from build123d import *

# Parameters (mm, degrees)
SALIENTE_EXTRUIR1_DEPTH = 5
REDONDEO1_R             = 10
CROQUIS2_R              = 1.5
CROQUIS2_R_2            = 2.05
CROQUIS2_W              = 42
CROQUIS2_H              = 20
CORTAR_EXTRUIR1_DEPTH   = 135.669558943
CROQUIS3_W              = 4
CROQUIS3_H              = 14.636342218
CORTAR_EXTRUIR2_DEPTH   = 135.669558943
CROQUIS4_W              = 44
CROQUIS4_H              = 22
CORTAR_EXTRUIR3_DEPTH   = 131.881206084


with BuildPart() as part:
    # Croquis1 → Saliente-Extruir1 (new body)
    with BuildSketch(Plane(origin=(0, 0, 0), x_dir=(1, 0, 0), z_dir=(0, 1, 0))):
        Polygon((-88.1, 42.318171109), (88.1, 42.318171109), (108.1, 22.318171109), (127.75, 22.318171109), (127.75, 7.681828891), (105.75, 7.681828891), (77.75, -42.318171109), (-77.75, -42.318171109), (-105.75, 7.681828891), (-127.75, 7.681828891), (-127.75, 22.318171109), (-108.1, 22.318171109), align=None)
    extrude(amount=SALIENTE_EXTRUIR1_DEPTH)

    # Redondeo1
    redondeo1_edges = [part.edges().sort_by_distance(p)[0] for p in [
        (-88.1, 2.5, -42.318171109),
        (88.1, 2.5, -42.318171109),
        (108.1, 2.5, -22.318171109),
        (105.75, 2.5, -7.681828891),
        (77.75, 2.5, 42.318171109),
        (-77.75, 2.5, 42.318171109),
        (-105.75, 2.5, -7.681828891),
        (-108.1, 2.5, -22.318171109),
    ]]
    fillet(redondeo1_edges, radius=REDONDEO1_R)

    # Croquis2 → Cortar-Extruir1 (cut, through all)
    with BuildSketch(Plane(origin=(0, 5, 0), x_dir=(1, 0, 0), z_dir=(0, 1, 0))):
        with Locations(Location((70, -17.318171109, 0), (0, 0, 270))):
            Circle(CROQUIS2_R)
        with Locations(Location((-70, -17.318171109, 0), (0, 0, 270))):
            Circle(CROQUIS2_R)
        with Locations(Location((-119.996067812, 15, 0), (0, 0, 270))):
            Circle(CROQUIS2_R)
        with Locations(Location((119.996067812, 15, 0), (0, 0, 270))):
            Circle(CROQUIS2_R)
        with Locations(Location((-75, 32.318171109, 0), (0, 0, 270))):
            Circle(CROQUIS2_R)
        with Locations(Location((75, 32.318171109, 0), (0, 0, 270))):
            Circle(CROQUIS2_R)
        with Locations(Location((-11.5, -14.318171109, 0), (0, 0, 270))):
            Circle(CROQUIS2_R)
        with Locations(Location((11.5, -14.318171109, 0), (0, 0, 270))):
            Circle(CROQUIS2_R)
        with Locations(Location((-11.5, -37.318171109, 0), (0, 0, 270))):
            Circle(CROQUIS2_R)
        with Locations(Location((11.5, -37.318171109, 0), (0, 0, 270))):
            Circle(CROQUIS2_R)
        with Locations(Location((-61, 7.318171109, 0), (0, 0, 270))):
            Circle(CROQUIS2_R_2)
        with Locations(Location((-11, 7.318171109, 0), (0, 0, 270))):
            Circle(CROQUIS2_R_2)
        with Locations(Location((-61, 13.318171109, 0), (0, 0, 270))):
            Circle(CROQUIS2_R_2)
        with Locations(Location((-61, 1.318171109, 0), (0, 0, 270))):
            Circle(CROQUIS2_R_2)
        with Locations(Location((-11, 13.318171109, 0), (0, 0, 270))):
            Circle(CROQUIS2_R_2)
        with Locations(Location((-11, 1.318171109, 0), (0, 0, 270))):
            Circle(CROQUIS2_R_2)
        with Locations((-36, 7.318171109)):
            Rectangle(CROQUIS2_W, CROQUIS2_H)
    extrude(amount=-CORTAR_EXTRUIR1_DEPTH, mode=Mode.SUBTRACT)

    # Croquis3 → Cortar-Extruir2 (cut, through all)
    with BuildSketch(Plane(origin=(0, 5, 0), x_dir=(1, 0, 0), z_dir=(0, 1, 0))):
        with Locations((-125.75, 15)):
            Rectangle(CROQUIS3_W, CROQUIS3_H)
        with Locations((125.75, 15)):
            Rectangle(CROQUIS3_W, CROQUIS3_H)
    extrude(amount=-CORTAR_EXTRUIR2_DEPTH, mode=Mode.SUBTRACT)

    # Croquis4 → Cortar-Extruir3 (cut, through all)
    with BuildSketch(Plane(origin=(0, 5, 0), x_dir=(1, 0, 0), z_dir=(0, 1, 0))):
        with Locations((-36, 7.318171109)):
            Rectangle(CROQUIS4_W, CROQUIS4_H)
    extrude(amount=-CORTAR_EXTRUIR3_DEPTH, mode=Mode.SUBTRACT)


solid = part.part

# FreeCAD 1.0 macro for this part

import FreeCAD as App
import Part
import Sketcher
from FreeCAD import Vector


def edges_at(feature, points):
    """Names of the edges that pass closest to the given points."""
    edges = feature.Shape.Edges
    near = lambda p: min(range(len(edges)), key=lambda i: edges[i].distToShape(Part.Vertex(*p))[0])
    return sorted({f"Edge{near(p) + 1}" for p in points})

doc = App.newDocument("Part")
params = doc.addObject("Spreadsheet::Sheet", "Params")
for row, (alias, value) in enumerate([
    ("sketch1_width", "22 mm"),
    ("sketch1_width2", "176.2 mm"),
    ("sketch1_width3", "155.5 mm"),
    ("pad1_length", "5 mm"),
    ("fillet_radius", "10 mm"),
    ("sketch2_diameter", "3 mm"),
    ("sketch2_diameter2", "4.1 mm"),
    ("sketch2_width", "42 mm"),
    ("sketch2_height", "20 mm"),
    ("sketch3_width", "4 mm"),
    ("sketch4_width", "44 mm"),
    ("sketch4_height", "22 mm"),
], start=1):
    params.set(f"A{row}", alias)
    params.set(f"B{row}", "=" + value)
    params.setAlias(f"B{row}", alias)

body = doc.addObject("PartDesign::Body", "Body")

# Sketch on XZ plane
sketch1 = doc.addObject("Sketcher::SketchObject", "Sketch")
body.addObject(sketch1)
sketch1.AttachmentSupport = (doc.XZ_Plane, [""])
sketch1.MapMode = "FlatFace"
sketch1.addGeometry([
    Part.LineSegment(Vector(88.1, -42.318171, 0), Vector(-88.1, -42.318171, 0)),  # 0
    Part.LineSegment(Vector(-88.1, -42.318171, 0), Vector(-108.1, -22.318171, 0)),  # 1
    Part.LineSegment(Vector(-108.1, -22.318171, 0), Vector(-127.75, -22.318171, 0)),  # 2
    Part.LineSegment(Vector(-127.75, -22.318171, 0), Vector(-127.75, -7.681829, 0)),  # 3
    Part.LineSegment(Vector(-127.75, -7.681829, 0), Vector(-105.75, -7.681829, 0)),  # 4
    Part.LineSegment(Vector(-105.75, -7.681829, 0), Vector(-77.75, 42.318171, 0)),  # 5
    Part.LineSegment(Vector(-77.75, 42.318171, 0), Vector(77.75, 42.318171, 0)),  # 6
    Part.LineSegment(Vector(77.75, 42.318171, 0), Vector(105.75, -7.681829, 0)),  # 7
    Part.LineSegment(Vector(105.75, -7.681829, 0), Vector(127.75, -7.681829, 0)),  # 8
    Part.LineSegment(Vector(127.75, -7.681829, 0), Vector(127.75, -22.318171, 0)),  # 9
    Part.LineSegment(Vector(127.75, -22.318171, 0), Vector(108.1, -22.318171, 0)),  # 10
    Part.LineSegment(Vector(108.1, -22.318171, 0), Vector(88.1, -42.318171, 0)),  # 11
], False)
sketch1.addConstraint([
    Sketcher.Constraint("Coincident", 0, 2, 1, 1),
    Sketcher.Constraint("Coincident", 1, 2, 2, 1),
    Sketcher.Constraint("Coincident", 2, 2, 3, 1),
    Sketcher.Constraint("Coincident", 3, 2, 4, 1),
    Sketcher.Constraint("Coincident", 4, 2, 5, 1),
    Sketcher.Constraint("Coincident", 5, 2, 6, 1),
    Sketcher.Constraint("Coincident", 6, 2, 7, 1),
    Sketcher.Constraint("Coincident", 7, 2, 8, 1),
    Sketcher.Constraint("Coincident", 8, 2, 9, 1),
    Sketcher.Constraint("Coincident", 9, 2, 10, 1),
    Sketcher.Constraint("Coincident", 10, 2, 11, 1),
    Sketcher.Constraint("Coincident", 11, 2, 0, 1),
    Sketcher.Constraint("Horizontal", 0),
    Sketcher.Constraint("Horizontal", 2),
    Sketcher.Constraint("Vertical", 3),
    Sketcher.Constraint("Horizontal", 4),
    Sketcher.Constraint("Horizontal", 6),
    Sketcher.Constraint("Horizontal", 8),
    Sketcher.Constraint("Vertical", 9),
    Sketcher.Constraint("Horizontal", 10),
    Sketcher.Constraint("Symmetric", 4, 2, 7, 2, -2),
    Sketcher.Constraint("Symmetric", 2, 2, 9, 2, -2),
    Sketcher.Constraint("Perpendicular", 1, 11),
    Sketcher.Constraint("Equal", 2, 10),
    Sketcher.Constraint("Equal", 5, 7),
    Sketcher.Constraint("Equal", 1, 11),
    Sketcher.Constraint("DistanceX", 4, 1, 4, 2, 22.0),
    Sketcher.Constraint("DistanceX", 0, 2, 0, 1, 176.2),
    Sketcher.Constraint("DistanceX", 6, 1, 6, 2, 155.5),
    Sketcher.Constraint("DistanceX", 1, 2, 0, 2, 20.0),
    Sketcher.Constraint("DistanceX", 4, 2, 5, 2, 28.0),
    Sketcher.Constraint("DistanceY", 4, 2, 5, 2, 50.0),
    Sketcher.Constraint("DistanceY", 3, 1, 3, 2, 14.636342),
    Sketcher.Constraint("DistanceY", 0, 2, -1, 1, 42.318171),
])
sketch1.setExpression("Constraints[26]", "Params.sketch1_width")
sketch1.setExpression("Constraints[27]", "Params.sketch1_width2")
sketch1.setExpression("Constraints[28]", "Params.sketch1_width3")
pad1 = doc.addObject("PartDesign::Pad", "Pad")
body.addObject(pad1)
pad1.Profile = sketch1
pad1.setExpression("Length", "Params.pad1_length")
pad1.Reversed = True
doc.recompute()

fillet = doc.addObject("PartDesign::Fillet", "Fillet")
body.addObject(fillet)
fillet.Base = (pad1, edges_at(pad1, [
    (-88.1, 2.5, -42.318),
    (88.1, 2.5, -42.318),
    (108.1, 2.5, -22.318),
    (105.75, 2.5, -7.682),
    (77.75, 2.5, 42.318),
    (-77.75, 2.5, 42.318),
    (-105.75, 2.5, -7.682),
    (-108.1, 2.5, -22.318),
]))
fillet.setExpression("Radius", "Params.fillet_radius")

# Sketch on XZ plane
sketch2 = doc.addObject("Sketcher::SketchObject", "Sketch001")
body.addObject(sketch2)
sketch2.AttachmentSupport = (doc.XZ_Plane, [""])
sketch2.MapMode = "FlatFace"
sketch2.AttachmentOffset = App.Placement(Vector(0, 0, -5), App.Rotation())
sketch2.addGeometry([
    Part.Circle(Vector(70, 17.318171, 0), Vector(0, 0, 1), 1.5),  # 0
    Part.Circle(Vector(-70, 17.318171, 0), Vector(0, 0, 1), 1.5),  # 1
    Part.Circle(Vector(-119.996068, -15, 0), Vector(0, 0, 1), 1.5),  # 2
    Part.Circle(Vector(119.996068, -15, 0), Vector(0, 0, 1), 1.5),  # 3
    Part.Circle(Vector(-75, -32.318171, 0), Vector(0, 0, 1), 1.5),  # 4
    Part.Circle(Vector(75, -32.318171, 0), Vector(0, 0, 1), 1.5),  # 5
    Part.Circle(Vector(-11.5, 14.318171, 0), Vector(0, 0, 1), 1.5),  # 6
    Part.Circle(Vector(11.5, 14.318171, 0), Vector(0, 0, 1), 1.5),  # 7
    Part.Circle(Vector(-11.5, 37.318171, 0), Vector(0, 0, 1), 1.5),  # 8
    Part.Circle(Vector(11.5, 37.318171, 0), Vector(0, 0, 1), 1.5),  # 9
    Part.Circle(Vector(-61, -7.318171, 0), Vector(0, 0, 1), 2.05),  # 10
    Part.Circle(Vector(-11, -7.318171, 0), Vector(0, 0, 1), 2.05),  # 11
    Part.Circle(Vector(-61, -13.318171, 0), Vector(0, 0, 1), 2.05),  # 12
    Part.Circle(Vector(-61, -1.318171, 0), Vector(0, 0, 1), 2.05),  # 13
    Part.Circle(Vector(-11, -13.318171, 0), Vector(0, 0, 1), 2.05),  # 14
    Part.Circle(Vector(-11, -1.318171, 0), Vector(0, 0, 1), 2.05),  # 15
    Part.LineSegment(Vector(-57, -17.318171, 0), Vector(-57, 2.681829, 0)),  # 16
    Part.LineSegment(Vector(-57, 2.681829, 0), Vector(-15, 2.681829, 0)),  # 17
    Part.LineSegment(Vector(-15, 2.681829, 0), Vector(-15, -17.318171, 0)),  # 18
    Part.LineSegment(Vector(-15, -17.318171, 0), Vector(-57, -17.318171, 0)),  # 19
], False)
sketch2.addConstraint([
    Sketcher.Constraint("Coincident", 16, 2, 17, 1),
    Sketcher.Constraint("Coincident", 17, 2, 18, 1),
    Sketcher.Constraint("Coincident", 18, 2, 19, 1),
    Sketcher.Constraint("Coincident", 19, 2, 16, 1),
    Sketcher.Constraint("Vertical", 16),
    Sketcher.Constraint("Horizontal", 17),
    Sketcher.Constraint("Vertical", 18),
    Sketcher.Constraint("Horizontal", 19),
    Sketcher.Constraint("Equal", 0, 1),
    Sketcher.Constraint("Equal", 1, 2),
    Sketcher.Constraint("Equal", 2, 3),
    Sketcher.Constraint("Equal", 3, 4),
    Sketcher.Constraint("Equal", 4, 5),
    Sketcher.Constraint("Equal", 5, 6),
    Sketcher.Constraint("Equal", 6, 7),
    Sketcher.Constraint("Equal", 7, 8),
    Sketcher.Constraint("Equal", 8, 9),
    Sketcher.Constraint("Equal", 10, 11),
    Sketcher.Constraint("Equal", 11, 12),
    Sketcher.Constraint("Equal", 12, 13),
    Sketcher.Constraint("Equal", 13, 14),
    Sketcher.Constraint("Equal", 14, 15),
    Sketcher.Constraint("Symmetric", 0, 3, 1, 3, -2),
    Sketcher.Constraint("Symmetric", 2, 3, 3, 3, -2),
    Sketcher.Constraint("Symmetric", 4, 3, 5, 3, -2),
    Sketcher.Constraint("Symmetric", 6, 3, 7, 3, -2),
    Sketcher.Constraint("Symmetric", 8, 3, 9, 3, -2),
    Sketcher.Constraint("Horizontal", 10, 3, 11, 3),
    Sketcher.Constraint("Horizontal", 12, 3, 14, 3),
    Sketcher.Constraint("Horizontal", 13, 3, 15, 3),
    Sketcher.Constraint("Vertical", 6, 3, 8, 3),
    Sketcher.Constraint("Vertical", 10, 3, 12, 3),
    Sketcher.Constraint("Vertical", 12, 3, 13, 3),
    Sketcher.Constraint("Vertical", 11, 3, 14, 3),
    Sketcher.Constraint("Vertical", 14, 3, 15, 3),
    Sketcher.Constraint("Diameter", 0, 3.0),
    Sketcher.Constraint("Diameter", 10, 4.1),
    Sketcher.Constraint("DistanceX", 17, 1, 17, 2, 42.0),
    Sketcher.Constraint("DistanceY", 16, 1, 16, 2, 20.0),
    Sketcher.Constraint("DistanceX", -1, 1, 0, 3, 70.0),
    Sketcher.Constraint("DistanceY", 2, 3, -1, 1, 15.0),
    Sketcher.Constraint("DistanceX", 4, 3, -1, 1, 75.0),
    Sketcher.Constraint("DistanceX", 10, 3, -1, 1, 61.0),
    Sketcher.Constraint("DistanceX", 11, 3, -1, 1, 11.0),
    Sketcher.Constraint("DistanceX", 16, 2, -1, 1, 57.0),
    Sketcher.Constraint("DistanceY", 6, 3, 1, 3, 3.0),
    Sketcher.Constraint("DistanceX", 6, 3, 7, 3, 23.0),
    Sketcher.Constraint("DistanceY", 6, 3, 8, 3, 23.0),
    Sketcher.Constraint("DistanceY", 4, 3, 10, 3, 25.0),
    Sketcher.Constraint("DistanceY", 12, 3, 10, 3, 6.0),
    Sketcher.Constraint("DistanceY", 10, 3, 13, 3, 6.0),
    Sketcher.Constraint("DistanceY", 13, 3, 16, 2, 4.0),
    Sketcher.Constraint("DistanceY", -1, 1, 0, 3, 17.318171),
    Sketcher.Constraint("DistanceY", 4, 3, -1, 1, 32.318171),
    Sketcher.Constraint("DistanceX", 2, 3, -1, 1, 119.996068),
])
sketch2.setExpression("Constraints[35]", "Params.sketch2_diameter")
sketch2.setExpression("Constraints[36]", "Params.sketch2_diameter2")
sketch2.setExpression("Constraints[37]", "Params.sketch2_width")
sketch2.setExpression("Constraints[38]", "Params.sketch2_height")
pocket1 = doc.addObject("PartDesign::Pocket", "Pocket")
body.addObject(pocket1)
pocket1.Profile = sketch2
pocket1.Type = "ThroughAll"
pocket1.Reversed = True

# Sketch on XZ plane
sketch3 = doc.addObject("Sketcher::SketchObject", "Sketch002")
body.addObject(sketch3)
sketch3.AttachmentSupport = (doc.XZ_Plane, [""])
sketch3.MapMode = "FlatFace"
sketch3.AttachmentOffset = App.Placement(Vector(0, 0, -5), App.Rotation())
sketch3.addGeometry([
    Part.LineSegment(Vector(-127.75, -22.318171, 0), Vector(-127.75, -7.681829, 0)),  # 0
    Part.LineSegment(Vector(-127.75, -7.681829, 0), Vector(-123.75, -7.681829, 0)),  # 1
    Part.LineSegment(Vector(-123.75, -7.681829, 0), Vector(-123.75, -22.318171, 0)),  # 2
    Part.LineSegment(Vector(-123.75, -22.318171, 0), Vector(-127.75, -22.318171, 0)),  # 3
    Part.LineSegment(Vector(123.75, -22.318171, 0), Vector(123.75, -7.681829, 0)),  # 4
    Part.LineSegment(Vector(123.75, -7.681829, 0), Vector(127.75, -7.681829, 0)),  # 5
    Part.LineSegment(Vector(127.75, -7.681829, 0), Vector(127.75, -22.318171, 0)),  # 6
    Part.LineSegment(Vector(127.75, -22.318171, 0), Vector(123.75, -22.318171, 0)),  # 7
], False)
sketch3.addConstraint([
    Sketcher.Constraint("Coincident", 0, 2, 1, 1),
    Sketcher.Constraint("Coincident", 1, 2, 2, 1),
    Sketcher.Constraint("Coincident", 2, 2, 3, 1),
    Sketcher.Constraint("Coincident", 3, 2, 0, 1),
    Sketcher.Constraint("Coincident", 4, 2, 5, 1),
    Sketcher.Constraint("Coincident", 5, 2, 6, 1),
    Sketcher.Constraint("Coincident", 6, 2, 7, 1),
    Sketcher.Constraint("Coincident", 7, 2, 4, 1),
    Sketcher.Constraint("Vertical", 0),
    Sketcher.Constraint("Horizontal", 1),
    Sketcher.Constraint("Vertical", 2),
    Sketcher.Constraint("Horizontal", 3),
    Sketcher.Constraint("Vertical", 4),
    Sketcher.Constraint("Horizontal", 5),
    Sketcher.Constraint("Vertical", 6),
    Sketcher.Constraint("Horizontal", 7),
    Sketcher.Constraint("Symmetric", 1, 2, 4, 2, -2),
    Sketcher.Constraint("Symmetric", 3, 2, 6, 2, -2),
    Sketcher.Constraint("DistanceX", 1, 1, 1, 2, 4.0),
    Sketcher.Constraint("DistanceX", 1, 2, 4, 2, 247.5),
    Sketcher.Constraint("DistanceY", 0, 1, 0, 2, 14.636342),
    Sketcher.Constraint("DistanceY", 0, 2, -1, 1, 7.681829),
])
sketch3.setExpression("Constraints[18]", "Params.sketch3_width")
pocket2 = doc.addObject("PartDesign::Pocket", "Pocket001")
body.addObject(pocket2)
pocket2.Profile = sketch3
pocket2.Type = "ThroughAll"
pocket2.Reversed = True

# Sketch on XZ plane
sketch4 = doc.addObject("Sketcher::SketchObject", "Sketch003")
body.addObject(sketch4)
sketch4.AttachmentSupport = (doc.XZ_Plane, [""])
sketch4.MapMode = "FlatFace"
sketch4.AttachmentOffset = App.Placement(Vector(0, 0, -5), App.Rotation())
sketch4.addGeometry([
    Part.LineSegment(Vector(-58, -18.318171, 0), Vector(-58, 3.681829, 0)),
    Part.LineSegment(Vector(-58, 3.681829, 0), Vector(-14, 3.681829, 0)),
    Part.LineSegment(Vector(-14, 3.681829, 0), Vector(-14, -18.318171, 0)),
    Part.LineSegment(Vector(-14, -18.318171, 0), Vector(-58, -18.318171, 0)),
], False)
sketch4.addConstraint([
    Sketcher.Constraint("Coincident", 0, 2, 1, 1),
    Sketcher.Constraint("Coincident", 1, 2, 2, 1),
    Sketcher.Constraint("Coincident", 2, 2, 3, 1),
    Sketcher.Constraint("Coincident", 3, 2, 0, 1),
    Sketcher.Constraint("Vertical", 0),
    Sketcher.Constraint("Horizontal", 1),
    Sketcher.Constraint("Vertical", 2),
    Sketcher.Constraint("Horizontal", 3),
    Sketcher.Constraint("DistanceX", 1, 1, 1, 2, 44.0),
    Sketcher.Constraint("DistanceY", 0, 1, 0, 2, 22.0),
    Sketcher.Constraint("DistanceX", 0, 2, -1, 1, 58.0),
    Sketcher.Constraint("DistanceY", -1, 1, 0, 2, 3.681829),
])
sketch4.setExpression("Constraints[8]", "Params.sketch4_width")
sketch4.setExpression("Constraints[9]", "Params.sketch4_height")
pocket3 = doc.addObject("PartDesign::Pocket", "Pocket002")
body.addObject(pocket3)
pocket3.Profile = sketch4
pocket3.Type = "ThroughAll"
pocket3.Reversed = True

doc.recompute()
